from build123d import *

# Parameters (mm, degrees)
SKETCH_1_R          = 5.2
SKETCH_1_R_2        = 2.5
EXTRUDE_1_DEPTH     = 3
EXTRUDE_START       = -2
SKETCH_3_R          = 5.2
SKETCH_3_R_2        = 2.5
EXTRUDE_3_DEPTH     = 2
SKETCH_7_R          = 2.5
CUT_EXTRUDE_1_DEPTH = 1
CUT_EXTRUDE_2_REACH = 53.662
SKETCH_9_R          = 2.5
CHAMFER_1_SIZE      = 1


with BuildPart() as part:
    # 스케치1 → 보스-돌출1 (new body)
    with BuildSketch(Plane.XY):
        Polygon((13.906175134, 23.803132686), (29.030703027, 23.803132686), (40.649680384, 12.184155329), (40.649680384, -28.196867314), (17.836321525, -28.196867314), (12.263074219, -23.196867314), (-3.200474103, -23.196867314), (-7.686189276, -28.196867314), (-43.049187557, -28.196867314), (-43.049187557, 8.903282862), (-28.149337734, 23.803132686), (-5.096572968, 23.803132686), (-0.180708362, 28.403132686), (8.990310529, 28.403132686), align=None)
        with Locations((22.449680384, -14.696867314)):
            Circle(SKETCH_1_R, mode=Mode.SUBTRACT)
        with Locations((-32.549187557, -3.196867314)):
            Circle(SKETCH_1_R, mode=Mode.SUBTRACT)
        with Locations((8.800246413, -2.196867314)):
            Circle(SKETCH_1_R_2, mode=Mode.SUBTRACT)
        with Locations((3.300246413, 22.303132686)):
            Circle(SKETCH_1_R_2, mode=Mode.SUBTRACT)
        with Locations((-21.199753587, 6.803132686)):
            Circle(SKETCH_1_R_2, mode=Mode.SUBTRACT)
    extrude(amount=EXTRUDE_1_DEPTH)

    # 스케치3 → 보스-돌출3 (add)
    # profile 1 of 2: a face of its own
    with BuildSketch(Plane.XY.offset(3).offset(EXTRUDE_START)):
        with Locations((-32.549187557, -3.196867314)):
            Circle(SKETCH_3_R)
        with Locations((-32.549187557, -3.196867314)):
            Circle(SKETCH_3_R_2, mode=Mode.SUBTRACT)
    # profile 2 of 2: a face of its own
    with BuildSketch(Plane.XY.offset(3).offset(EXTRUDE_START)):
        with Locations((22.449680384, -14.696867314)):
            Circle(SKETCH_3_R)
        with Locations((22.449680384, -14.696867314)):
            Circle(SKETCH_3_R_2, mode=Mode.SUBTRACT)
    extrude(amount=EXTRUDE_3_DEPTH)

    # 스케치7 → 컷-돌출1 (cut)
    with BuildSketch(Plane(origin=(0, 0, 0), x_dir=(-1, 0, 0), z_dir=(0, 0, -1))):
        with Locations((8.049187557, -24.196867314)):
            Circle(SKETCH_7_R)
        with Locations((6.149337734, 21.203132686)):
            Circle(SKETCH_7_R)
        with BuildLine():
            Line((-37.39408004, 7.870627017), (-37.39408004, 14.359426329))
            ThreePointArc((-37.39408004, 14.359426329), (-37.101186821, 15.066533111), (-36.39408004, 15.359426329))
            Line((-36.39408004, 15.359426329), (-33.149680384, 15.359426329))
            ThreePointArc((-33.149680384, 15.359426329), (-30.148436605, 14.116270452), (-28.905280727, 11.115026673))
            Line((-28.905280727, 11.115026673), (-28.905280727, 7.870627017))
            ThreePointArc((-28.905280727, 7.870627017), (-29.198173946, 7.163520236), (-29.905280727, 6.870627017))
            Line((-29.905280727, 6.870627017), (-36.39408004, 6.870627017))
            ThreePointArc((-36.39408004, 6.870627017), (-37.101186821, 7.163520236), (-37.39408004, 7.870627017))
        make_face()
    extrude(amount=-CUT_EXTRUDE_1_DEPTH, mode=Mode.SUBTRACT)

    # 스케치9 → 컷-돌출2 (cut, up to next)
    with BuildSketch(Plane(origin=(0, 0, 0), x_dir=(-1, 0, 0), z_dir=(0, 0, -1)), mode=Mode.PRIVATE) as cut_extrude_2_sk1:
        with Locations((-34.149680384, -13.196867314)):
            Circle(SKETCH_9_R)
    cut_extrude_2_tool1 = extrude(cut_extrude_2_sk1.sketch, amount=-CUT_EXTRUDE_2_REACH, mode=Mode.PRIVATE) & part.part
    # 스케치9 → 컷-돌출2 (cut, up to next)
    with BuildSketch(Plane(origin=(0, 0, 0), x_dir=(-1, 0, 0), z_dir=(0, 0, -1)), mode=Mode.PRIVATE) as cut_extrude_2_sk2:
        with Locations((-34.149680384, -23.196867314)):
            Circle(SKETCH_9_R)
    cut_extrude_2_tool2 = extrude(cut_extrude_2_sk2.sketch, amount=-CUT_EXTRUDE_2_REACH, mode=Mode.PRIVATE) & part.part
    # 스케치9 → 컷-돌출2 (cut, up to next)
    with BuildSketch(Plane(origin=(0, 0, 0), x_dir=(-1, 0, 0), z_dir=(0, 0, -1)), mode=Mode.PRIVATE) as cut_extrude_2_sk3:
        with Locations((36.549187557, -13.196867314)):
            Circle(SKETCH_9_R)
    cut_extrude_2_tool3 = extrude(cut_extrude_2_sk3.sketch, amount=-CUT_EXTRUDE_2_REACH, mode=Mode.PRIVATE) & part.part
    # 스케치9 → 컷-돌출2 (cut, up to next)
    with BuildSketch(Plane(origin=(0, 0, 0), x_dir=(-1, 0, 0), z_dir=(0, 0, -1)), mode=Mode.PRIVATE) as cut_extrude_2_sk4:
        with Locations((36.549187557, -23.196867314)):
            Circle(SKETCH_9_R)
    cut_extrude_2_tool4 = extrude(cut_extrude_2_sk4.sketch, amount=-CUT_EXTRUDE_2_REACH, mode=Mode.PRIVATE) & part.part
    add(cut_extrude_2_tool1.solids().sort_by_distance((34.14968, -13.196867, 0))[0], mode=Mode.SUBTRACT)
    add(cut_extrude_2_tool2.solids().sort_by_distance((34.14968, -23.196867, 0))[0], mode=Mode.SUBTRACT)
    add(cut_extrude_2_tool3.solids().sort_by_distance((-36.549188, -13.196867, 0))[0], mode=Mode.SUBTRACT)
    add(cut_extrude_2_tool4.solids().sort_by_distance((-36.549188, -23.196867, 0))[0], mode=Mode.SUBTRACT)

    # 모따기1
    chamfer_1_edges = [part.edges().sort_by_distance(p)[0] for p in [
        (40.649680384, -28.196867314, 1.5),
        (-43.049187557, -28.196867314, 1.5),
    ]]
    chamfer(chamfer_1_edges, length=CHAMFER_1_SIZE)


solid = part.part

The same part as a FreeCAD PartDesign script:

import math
import FreeCAD as App
import Part
import Sketcher
from FreeCAD import Vector
Q = App.Units.Quantity


def edges_at(feature, points):
    """Names of the edges that pass closest to the given points."""
    edges = feature.Shape.Edges
    near = lambda p: min(range(len(edges)), key=lambda i: edges[i].distToShape(Part.Vertex(*p))[0])
    return sorted({f"Edge{near(p) + 1}" for p in points})


def add_polygon(sketch, points):
    """Adds a closed chain of lines whose ends are joined by coincident constraints."""
    first, n = sketch.GeometryCount, len(points)
    for a, b in zip(points, points[1:] + points[:1]):
        sketch.addGeometry(Part.LineSegment(App.Vector(*a, 0), App.Vector(*b, 0)), False)
    for i in range(n):
        sketch.addConstraint(Sketcher.Constraint("Coincident", first + i, 2, first + (i + 1) % n, 1))

doc = App.newDocument("Part")
body = doc.addObject("PartDesign::Body", "Body")

sketch1 = doc.addObject("Sketcher::SketchObject", "Sketch")
body.addObject(sketch1)
sketch1.AttachmentSupport = (doc.XY_Plane, [""])
sketch1.MapMode = "FlatFace"
add_polygon(sketch1, [(29, 23.8), (13.9, 23.8), (9, 28.4), (-0.2, 28.4), (-5.1, 23.8), (-28.1, 23.8), (-43, 8.9), (-43, -28.2), (-7.7, -28.2), (-3.2, -23.2), (12.3, -23.2), (17.8, -28.2), (40.6, -28.2), (40.6, 12.2)])
sketch1.addGeometry(Part.Circle(Vector(22.4, -14.7, 0), Vector(0, 0, 1), 5.2), False)
sketch1.addGeometry(Part.Circle(Vector(8.8, -2.2, 0), Vector(0, 0, 1), 2.5), False)
sketch1.addGeometry(Part.Circle(Vector(-32.5, -3.2, 0), Vector(0, 0, 1), 5.2), False)
sketch1.addGeometry(Part.Circle(Vector(3.3, 22.3, 0), Vector(0, 0, 1), 2.5), False)
sketch1.addGeometry(Part.Circle(Vector(-21.2, 6.8, 0), Vector(0, 0, 1), 2.5), False)
sketch1.addConstraint(Sketcher.Constraint("Horizontal", 0))
sketch1.addConstraint(Sketcher.Constraint("Horizontal", 2))
sketch1.addConstraint(Sketcher.Constraint("Horizontal", 4))
sketch1.addConstraint(Sketcher.Constraint("Vertical", 6))
sketch1.addConstraint(Sketcher.Constraint("Horizontal", 7))
sketch1.addConstraint(Sketcher.Constraint("Horizontal", 9))
sketch1.addConstraint(Sketcher.Constraint("Horizontal", 11))
sketch1.addConstraint(Sketcher.Constraint("Vertical", 12))
sketch1.addConstraint(Sketcher.Constraint("Equal", 14, 16))
sketch1.addConstraint(Sketcher.Constraint("Equal", 15, 17))
sketch1.addConstraint(Sketcher.Constraint("Equal", 17, 18))
sketch1.addConstraint(Sketcher.Constraint("Perpendicular", 8, 10))
sketch1.addConstraint(Sketcher.Constraint("Perpendicular", 5, 13))
sketch1.addConstraint(Sketcher.Constraint("Horizontal", 0, 2, 3, 2))
sketch1.addConstraint(Sketcher.Constraint("Horizontal", 7, 2, 10, 2))
sketch1.addConstraint(Sketcher.Constraint("Equal", 1, 3))
sketch1.addConstraint(Sketcher.Constraint("Diameter", 15, Q("5 mm")))
sketch1.addConstraint(Sketcher.Constraint("Diameter", 14, Q("10.4 mm")))
sketch1.addConstraint(Sketcher.Constraint("Angle", 5, Q("-135 deg")))
sketch1.addConstraint(Sketcher.Constraint("DistanceY", 16, 3, 15, 3, Q("1 mm")))
sketch1.addConstraint(Sketcher.Constraint("DistanceY", 14, 3, 17, 3, Q("37 mm")))
sketch1.addConstraint(Sketcher.Constraint("DistanceY", 16, 3, 18, 3, Q("10 mm")))
sketch1.addConstraint(Sketcher.Constraint("DistanceX", 18, 3, 15, 3, Q("30 mm")))
sketch1.addConstraint(Sketcher.Constraint("DistanceY", 15, 3, 0, 2, Q("26 mm")))
sketch1.addConstraint(Sketcher.Constraint("DistanceY", 6, 2, 16, 3, Q("25 mm")))
sketch1.addConstraint(Sketcher.Constraint("DistanceY", 7, 2, 8, 2, Q("5 mm")))
sketch1.addConstraint(Sketcher.Constraint("DistanceY", 14, 3, 15, 3, Q("12.5 mm")))
sketch1.addConstraint(Sketcher.Constraint("DistanceX", 17, 3, 15, 3, Q("5.5 mm")))
sketch1.addConstraint(Sketcher.Constraint("DistanceY", 0, 2, 1, 2, Q("4.6 mm")))
sketch1.addConstraint(Sketcher.Constraint("DistanceX", 5, 2, 16, 3, Q("10.5 mm")))
sketch1.addConstraint(Sketcher.Constraint("DistanceX", 14, 3, 11, 2, Q("18.2 mm")))
sketch1.addConstraint(Sketcher.Constraint("DistanceX", 7, 1, 7, 2, Q("35.362998 mm")))
sketch1.addConstraint(Sketcher.Constraint("DistanceX", 2, 2, 2, 1, Q("9.171019 mm")))
sketch1.addConstraint(Sketcher.Constraint("DistanceX", 9, 1, 9, 2, Q("15.463548 mm")))
sketch1.addConstraint(Sketcher.Constraint("DistanceX", 11, 1, 11, 2, Q("22.813359 mm")))
sketch1.addConstraint(Sketcher.Constraint("DistanceY", 6, 2, 6, 1, Q("37.10015 mm")))
sketch1.addConstraint(Sketcher.Constraint("Distance", 1, Q("6.732438 mm")))
sketch1.addConstraint(Sketcher.Constraint("DistanceX", 0, 2, 0, 1, Q("15.124528 mm")))
sketch1.addConstraint(Sketcher.Constraint("DistanceX", 4, 2, 4, 1, Q("23.052765 mm")))
sketch1.addConstraint(Sketcher.Constraint("DistanceY", 12, 1, 12, 2, Q("40.381023 mm")))
sketch1.addConstraint(Sketcher.Constraint("DistanceX", -1, 1, 14, 3, Q("22.44968 mm")))
sketch1.addConstraint(Sketcher.Constraint("DistanceX", 17, 3, 0, 2, Q("10.605929 mm")))
sketch1.addConstraint(Sketcher.Constraint("DistanceY", 14, 3, -1, 1, Q("14.696867 mm")))
pad1 = doc.addObject("PartDesign::Pad", "Pad")
body.addObject(pad1)
pad1.Profile = sketch1
pad1.Length = 3

sketch2 = doc.addObject("Sketcher::SketchObject", "Sketch001")
body.addObject(sketch2)
sketch2.AttachmentSupport = (doc.XY_Plane, [""])
sketch2.MapMode = "FlatFace"
sketch2.AttachmentOffset = App.Placement(Vector(0, 0, 1), App.Rotation())
sketch2.addGeometry(Part.Circle(Vector(-32.5, -3.2, 0), Vector(0, 0, 1), 5.2), False)
sketch2.addGeometry(Part.Circle(Vector(-32.5, -3.2, 0), Vector(0, 0, 1), 2.5), False)
sketch2.addGeometry(Part.Circle(Vector(22.4, -14.7, 0), Vector(0, 0, 1), 5.2), False)
sketch2.addGeometry(Part.Circle(Vector(22.4, -14.7, 0), Vector(0, 0, 1), 2.5), False)
sketch2.addConstraint(Sketcher.Constraint("Coincident", 1, 3, 0, 3))
sketch2.addConstraint(Sketcher.Constraint("Coincident", 3, 3, 2, 3))
sketch2.addConstraint(Sketcher.Constraint("Equal", 0, 2))
sketch2.addConstraint(Sketcher.Constraint("Equal", 1, 3))
sketch2.addConstraint(Sketcher.Constraint("Diameter", 1, Q("5 mm")))
sketch2.addConstraint(Sketcher.Constraint("Diameter", 0, Q("10.4 mm")))
sketch2.addConstraint(Sketcher.Constraint("DistanceY", 2, 3, 0, 3, Q("11.5 mm")))
sketch2.addConstraint(Sketcher.Constraint("DistanceX", -1, 1, 2, 3, Q("22.44968 mm")))
sketch2.addConstraint(Sketcher.Constraint("DistanceX", 0, 3, -1, 1, Q("32.549188 mm")))
sketch2.addConstraint(Sketcher.Constraint("DistanceY", 0, 3, -1, 1, Q("3.196867 mm")))
pad2 = doc.addObject("PartDesign::Pad", "Pad001")
body.addObject(pad2)
pad2.Profile = sketch2
pad2.Length = 2

sketch3 = doc.addObject("Sketcher::SketchObject", "Sketch002")
body.addObject(sketch3)
sketch3.AttachmentSupport = (doc.XY_Plane, [""])
sketch3.MapMode = "FlatFace"
sketch3.addGeometry(Part.Circle(Vector(-8, -24.2, 0), Vector(0, 0, 1), 2.5), False)
sketch3.addGeometry(Part.Circle(Vector(-6.1, 21.2, 0), Vector(0, 0, 1), 2.5), False)
sketch3.addGeometry(Part.LineSegment(Vector(37.4, 14.4, 0), Vector(37.4, 7.9, 0)), False)
sketch3.addGeometry(Part.ArcOfCircle(Part.Circle(Vector(36.4, 7.9, 0), Vector(0, 0, 1), 1), math.radians(-90), math.radians(0)), False)
sketch3.addGeometry(Part.LineSegment(Vector(36.4, 6.9, 0), Vector(29.9, 6.9, 0)), False)
sketch3.addGeometry(Part.ArcOfCircle(Part.Circle(Vector(29.9, 7.9, 0), Vector(0, 0, 1), 1), math.radians(-180), math.radians(-90)), False)
sketch3.addGeometry(Part.LineSegment(Vector(28.9, 7.9, 0), Vector(28.9, 11.1, 0)), False)
sketch3.addGeometry(Part.ArcOfCircle(Part.Circle(Vector(33.1, 11.1, 0), Vector(0, 0, 1), 4.2), math.radians(90), math.radians(180)), False)
sketch3.addGeometry(Part.LineSegment(Vector(33.1, 15.4, 0), Vector(36.4, 15.4, 0)), False)
sketch3.addGeometry(Part.ArcOfCircle(Part.Circle(Vector(36.4, 14.4, 0), Vector(0, 0, 1), 1), math.radians(0), math.radians(90)), False)
sketch3.addConstraint(Sketcher.Constraint("Tangent", 2, 2, 3, 2))
sketch3.addConstraint(Sketcher.Constraint("Tangent", 3, 1, 4, 1))
sketch3.addConstraint(Sketcher.Constraint("Tangent", 4, 2, 5, 2))
sketch3.addConstraint(Sketcher.Constraint("Tangent", 5, 1, 6, 1))
sketch3.addConstraint(Sketcher.Constraint("Tangent", 6, 2, 7, 2))
sketch3.addConstraint(Sketcher.Constraint("Tangent", 7, 1, 8, 1))
sketch3.addConstraint(Sketcher.Constraint("Tangent", 8, 2, 9, 2))
sketch3.addConstraint(Sketcher.Constraint("Tangent", 9, 1, 2, 1))
sketch3.addConstraint(Sketcher.Constraint("Vertical", 2))
sketch3.addConstraint(Sketcher.Constraint("Horizontal", 4))
sketch3.addConstraint(Sketcher.Constraint("Vertical", 6))
sketch3.addConstraint(Sketcher.Constraint("Horizontal", 8))
sketch3.addConstraint(Sketcher.Constraint("Equal", 0, 1))
sketch3.addConstraint(Sketcher.Constraint("Equal", 3, 5))
sketch3.addConstraint(Sketcher.Constraint("Equal", 5, 9))
sketch3.addConstraint(Sketcher.Constraint("Equal", 4, 2))
sketch3.addConstraint(Sketcher.Constraint("Diameter", 0, Q("5 mm")))
sketch3.addConstraint(Sketcher.Constraint("Radius", 3, Q("1 mm")))
sketch3.addConstraint(Sketcher.Constraint("Radius", 7, Q("4.2444 mm")))
sketch3.addConstraint(Sketcher.Constraint("DistanceY", 0, 3, 1, 3, Q("45.4 mm")))
sketch3.addConstraint(Sketcher.Constraint("DistanceX", 4, 2, 4, 1, Q("6.488799 mm")))
sketch3.addConstraint(Sketcher.Constraint("DistanceX", -1, 1, 3, 3, Q("36.39408 mm")))
sketch3.addConstraint(Sketcher.Constraint("DistanceX", 0, 3, 1, 3, Q("1.89985 mm")))
sketch3.addConstraint(Sketcher.Constraint("DistanceX", 1, 3, 5, 3, Q("36.054618 mm")))
sketch3.addConstraint(Sketcher.Constraint("DistanceY", 0, 3, -1, 1, Q("24.196867 mm")))
sketch3.addConstraint(Sketcher.Constraint("DistanceY", -1, 1, 3, 3, Q("7.870627 mm")))
pocket1 = doc.addObject("PartDesign::Pocket", "Pocket")
body.addObject(pocket1)
pocket1.Profile = sketch3
pocket1.Length = 1
pocket1.Reversed = True

sketch4 = doc.addObject("Sketcher::SketchObject", "Sketch003")
body.addObject(sketch4)
sketch4.AttachmentSupport = (doc.XY_Plane, [""])
sketch4.MapMode = "FlatFace"
sketch4.addGeometry(Part.Circle(Vector(34.1, -13.2, 0), Vector(0, 0, 1), 2.5), False)
sketch4.addConstraint(Sketcher.Constraint("Diameter", 0, Q("5 mm")))
sketch4.addConstraint(Sketcher.Constraint("DistanceX", -1, 1, 0, 3, Q("34.14968 mm")))
sketch4.addConstraint(Sketcher.Constraint("DistanceY", 0, 3, -1, 1, Q("13.196867 mm")))
pocket2 = doc.addObject("PartDesign::Pocket", "Pocket001")
body.addObject(pocket2)
pocket2.Profile = sketch4
pocket2.Type = "UpToFirst"
pocket2.Reversed = True

sketch5 = doc.addObject("Sketcher::SketchObject", "Sketch004")
body.addObject(sketch5)
sketch5.AttachmentSupport = (doc.XY_Plane, [""])
sketch5.MapMode = "FlatFace"
sketch5.addGeometry(Part.Circle(Vector(34.1, -23.2, 0), Vector(0, 0, 1), 2.5), False)
sketch5.addConstraint(Sketcher.Constraint("Diameter", 0, Q("5 mm")))
sketch5.addConstraint(Sketcher.Constraint("DistanceX", -1, 1, 0, 3, Q("34.14968 mm")))
sketch5.addConstraint(Sketcher.Constraint("DistanceY", 0, 3, -1, 1, Q("23.196867 mm")))
pocket3 = doc.addObject("PartDesign::Pocket", "Pocket002")
body.addObject(pocket3)
pocket3.Profile = sketch5
pocket3.Type = "UpToFirst"
pocket3.Reversed = True

sketch6 = doc.addObject("Sketcher::SketchObject", "Sketch005")
body.addObject(sketch6)
sketch6.AttachmentSupport = (doc.XY_Plane, [""])
sketch6.MapMode = "FlatFace"
sketch6.addGeometry(Part.Circle(Vector(-36.5, -13.2, 0), Vector(0, 0, 1), 2.5), False)
sketch6.addConstraint(Sketcher.Constraint("Diameter", 0, Q("5 mm")))
sketch6.addConstraint(Sketcher.Constraint("DistanceX", 0, 3, -1, 1, Q("36.549188 mm")))
sketch6.addConstraint(Sketcher.Constraint("DistanceY", 0, 3, -1, 1, Q("13.196867 mm")))
pocket4 = doc.addObject("PartDesign::Pocket", "Pocket003")
body.addObject(pocket4)
pocket4.Profile = sketch6
pocket4.Type = "UpToFirst"
pocket4.Reversed = True

sketch7 = doc.addObject("Sketcher::SketchObject", "Sketch006")
body.addObject(sketch7)
sketch7.AttachmentSupport = (doc.XY_Plane, [""])
sketch7.MapMode = "FlatFace"
sketch7.addGeometry(Part.Circle(Vector(-36.5, -23.2, 0), Vector(0, 0, 1), 2.5), False)
sketch7.addConstraint(Sketcher.Constraint("Diameter", 0, Q("5 mm")))
sketch7.addConstraint(Sketcher.Constraint("DistanceX", 0, 3, -1, 1, Q("36.549188 mm")))
sketch7.addConstraint(Sketcher.Constraint("DistanceY", 0, 3, -1, 1, Q("23.196867 mm")))
pocket5 = doc.addObject("PartDesign::Pocket", "Pocket004")
body.addObject(pocket5)
pocket5.Profile = sketch7
pocket5.Type = "UpToFirst"
pocket5.Reversed = True
doc.recompute()

chamfer = doc.addObject("PartDesign::Chamfer", "Chamfer")
body.addObject(chamfer)
chamfer.Base = (pocket5, edges_at(pocket5, [(40.65, -28.197, 1.5), (-43.049, -28.197, 1.5)]))
chamfer.Size = 1

doc.recompute()
